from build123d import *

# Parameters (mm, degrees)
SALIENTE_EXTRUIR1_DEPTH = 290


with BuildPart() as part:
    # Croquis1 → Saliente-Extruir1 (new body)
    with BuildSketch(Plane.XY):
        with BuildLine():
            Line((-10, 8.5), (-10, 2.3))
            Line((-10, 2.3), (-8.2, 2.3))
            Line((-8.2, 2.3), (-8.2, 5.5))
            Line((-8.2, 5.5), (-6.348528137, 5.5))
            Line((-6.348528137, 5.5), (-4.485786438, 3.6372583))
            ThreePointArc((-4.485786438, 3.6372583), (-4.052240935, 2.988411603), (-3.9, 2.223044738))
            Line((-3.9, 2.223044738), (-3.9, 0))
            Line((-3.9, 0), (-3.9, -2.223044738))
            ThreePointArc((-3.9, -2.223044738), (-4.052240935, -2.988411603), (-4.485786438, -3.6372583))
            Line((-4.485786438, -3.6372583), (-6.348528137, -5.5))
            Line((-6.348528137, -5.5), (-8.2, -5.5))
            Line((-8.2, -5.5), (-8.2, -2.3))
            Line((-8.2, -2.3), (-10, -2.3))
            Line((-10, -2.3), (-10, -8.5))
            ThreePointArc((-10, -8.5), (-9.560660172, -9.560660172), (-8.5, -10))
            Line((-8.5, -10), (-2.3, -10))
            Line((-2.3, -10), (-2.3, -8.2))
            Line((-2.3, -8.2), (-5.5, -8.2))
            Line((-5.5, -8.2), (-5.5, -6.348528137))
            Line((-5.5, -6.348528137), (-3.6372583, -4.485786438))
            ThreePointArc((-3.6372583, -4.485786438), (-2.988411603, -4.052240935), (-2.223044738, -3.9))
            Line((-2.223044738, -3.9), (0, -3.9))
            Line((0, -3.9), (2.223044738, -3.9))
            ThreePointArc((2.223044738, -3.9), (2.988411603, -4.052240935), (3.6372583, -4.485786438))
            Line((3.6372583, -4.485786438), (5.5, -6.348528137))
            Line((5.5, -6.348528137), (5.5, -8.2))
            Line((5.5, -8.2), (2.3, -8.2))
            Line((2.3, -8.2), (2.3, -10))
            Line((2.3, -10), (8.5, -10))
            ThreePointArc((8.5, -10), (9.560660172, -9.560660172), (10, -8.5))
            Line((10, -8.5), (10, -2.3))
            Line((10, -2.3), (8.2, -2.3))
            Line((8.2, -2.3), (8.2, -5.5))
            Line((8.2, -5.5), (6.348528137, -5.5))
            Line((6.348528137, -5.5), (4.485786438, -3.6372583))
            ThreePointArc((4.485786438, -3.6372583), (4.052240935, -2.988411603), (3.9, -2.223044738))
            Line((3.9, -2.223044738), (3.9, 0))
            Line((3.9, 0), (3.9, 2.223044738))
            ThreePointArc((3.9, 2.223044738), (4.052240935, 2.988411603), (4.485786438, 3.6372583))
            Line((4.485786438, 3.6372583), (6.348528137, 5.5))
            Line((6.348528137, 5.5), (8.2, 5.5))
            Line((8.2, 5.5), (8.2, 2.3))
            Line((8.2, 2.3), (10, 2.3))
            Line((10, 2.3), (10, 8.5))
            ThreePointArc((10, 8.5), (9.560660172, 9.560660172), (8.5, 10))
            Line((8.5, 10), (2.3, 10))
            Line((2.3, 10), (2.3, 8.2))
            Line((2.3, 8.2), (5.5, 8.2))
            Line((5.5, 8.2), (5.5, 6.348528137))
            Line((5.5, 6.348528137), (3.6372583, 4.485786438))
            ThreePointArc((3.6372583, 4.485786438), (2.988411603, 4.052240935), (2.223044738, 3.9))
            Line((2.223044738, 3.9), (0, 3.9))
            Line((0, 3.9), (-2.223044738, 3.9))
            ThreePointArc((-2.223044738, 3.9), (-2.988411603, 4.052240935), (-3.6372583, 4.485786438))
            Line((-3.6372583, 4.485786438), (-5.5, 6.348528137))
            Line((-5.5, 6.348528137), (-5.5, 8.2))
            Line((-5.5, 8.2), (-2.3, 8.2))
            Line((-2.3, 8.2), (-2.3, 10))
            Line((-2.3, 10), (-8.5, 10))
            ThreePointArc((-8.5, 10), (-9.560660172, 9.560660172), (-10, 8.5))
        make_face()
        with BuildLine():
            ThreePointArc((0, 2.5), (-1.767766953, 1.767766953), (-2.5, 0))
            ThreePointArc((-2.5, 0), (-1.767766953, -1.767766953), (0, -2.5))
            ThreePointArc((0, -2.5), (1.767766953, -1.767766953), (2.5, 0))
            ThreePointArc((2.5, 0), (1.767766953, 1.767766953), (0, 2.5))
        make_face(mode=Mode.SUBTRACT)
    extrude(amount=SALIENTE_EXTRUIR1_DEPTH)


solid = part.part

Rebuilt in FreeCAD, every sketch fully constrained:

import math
import FreeCAD as App
import Part
import Sketcher
Q = App.Units.Quantity

doc = App.newDocument("Part")
params = doc.addObject("Spreadsheet::Sheet", "Params")
for row, (alias, value) in enumerate([
    ("sketch1_radius", "2 mm"),
    ("sketch1_radius2", "1.5 mm"),
    ("sketch1_radius3", "2.5 mm"),
    ("sketch1_width", "1.8 mm"),
    ("sketch1_width2", "6.2 mm"),
    ("pad1_length", "290 mm"),
], start=1):
    params.set(f"A{row}", alias)
    params.set(f"B{row}", "=" + value)
    params.setAlias(f"B{row}", alias)

body = doc.addObject("PartDesign::Body", "Body")

# Sketch on XY plane
sketch1 = doc.addObject("Sketcher::SketchObject", "Sketch")
body.addObject(sketch1)
sketch1.AttachmentSupport = (doc.XY_Plane, [""])
sketch1.MapMode = "FlatFace"
sketch1.addGeometry(Part.LineSegment(App.Vector(-10, 8.5, 0), App.Vector(-10, 2.3, 0)), False)
sketch1.addGeometry(Part.LineSegment(App.Vector(-10, 2.3, 0), App.Vector(-8.2, 2.3, 0)), False)
sketch1.addGeometry(Part.LineSegment(App.Vector(-8.2, 2.3, 0), App.Vector(-8.2, 5.5, 0)), False)
sketch1.addGeometry(Part.LineSegment(App.Vector(-8.2, 5.5, 0), App.Vector(-6.3, 5.5, 0)), False)
sketch1.addGeometry(Part.LineSegment(App.Vector(-6.3, 5.5, 0), App.Vector(-4.5, 3.6, 0)), False)
sketch1.addGeometry(Part.ArcOfCircle(Part.Circle(App.Vector(-5.9, 2.2, 0), App.Vector(0, 0, 1), 2), math.radians(0), math.radians(45)), False)
sketch1.addGeometry(Part.LineSegment(App.Vector(-3.9, 2.2, 0), App.Vector(-3.9, -2.2, 0)), False)
sketch1.addGeometry(Part.ArcOfCircle(Part.Circle(App.Vector(-5.9, -2.2, 0), App.Vector(0, 0, 1), 2), math.radians(-45), math.radians(0)), False)
sketch1.addGeometry(Part.LineSegment(App.Vector(-4.5, -3.6, 0), App.Vector(-6.3, -5.5, 0)), False)
sketch1.addGeometry(Part.LineSegment(App.Vector(-6.3, -5.5, 0), App.Vector(-8.2, -5.5, 0)), False)
sketch1.addGeometry(Part.LineSegment(App.Vector(-8.2, -5.5, 0), App.Vector(-8.2, -2.3, 0)), False)
sketch1.addGeometry(Part.LineSegment(App.Vector(-8.2, -2.3, 0), App.Vector(-10, -2.3, 0)), False)
sketch1.addGeometry(Part.LineSegment(App.Vector(-10, -2.3, 0), App.Vector(-10, -8.5, 0)), False)
sketch1.addGeometry(Part.ArcOfCircle(Part.Circle(App.Vector(-8.5, -8.5, 0), App.Vector(0, 0, 1), 1.5), math.radians(180), math.radians(270)), False)
sketch1.addGeometry(Part.LineSegment(App.Vector(-8.5, -10, 0), App.Vector(-2.3, -10, 0)), False)
sketch1.addGeometry(Part.LineSegment(App.Vector(-2.3, -10, 0), App.Vector(-2.3, -8.2, 0)), False)
sketch1.addGeometry(Part.LineSegment(App.Vector(-2.3, -8.2, 0), App.Vector(-5.5, -8.2, 0)), False)
sketch1.addGeometry(Part.LineSegment(App.Vector(-5.5, -8.2, 0), App.Vector(-5.5, -6.3, 0)), False)
sketch1.addGeometry(Part.LineSegment(App.Vector(-5.5, -6.3, 0), App.Vector(-3.6, -4.5, 0)), False)
sketch1.addGeometry(Part.ArcOfCircle(Part.Circle(App.Vector(-2.2, -5.9, 0), App.Vector(0, 0, 1), 2), math.radians(90), math.radians(135)), False)
sketch1.addGeometry(Part.LineSegment(App.Vector(-2.2, -3.9, 0), App.Vector(2.2, -3.9, 0)), False)
sketch1.addGeometry(Part.ArcOfCircle(Part.Circle(App.Vector(2.2, -5.9, 0), App.Vector(0, 0, 1), 2), math.radians(45), math.radians(90)), False)
sketch1.addGeometry(Part.LineSegment(App.Vector(3.6, -4.5, 0), App.Vector(5.5, -6.3, 0)), False)
sketch1.addGeometry(Part.LineSegment(App.Vector(5.5, -6.3, 0), App.Vector(5.5, -8.2, 0)), False)
sketch1.addGeometry(Part.LineSegment(App.Vector(5.5, -8.2, 0), App.Vector(2.3, -8.2, 0)), False)
sketch1.addGeometry(Part.LineSegment(App.Vector(2.3, -8.2, 0), App.Vector(2.3, -10, 0)), False)
sketch1.addGeometry(Part.LineSegment(App.Vector(2.3, -10, 0), App.Vector(8.5, -10, 0)), False)
sketch1.addGeometry(Part.ArcOfCircle(Part.Circle(App.Vector(8.5, -8.5, 0), App.Vector(0, 0, 1), 1.5), math.radians(-90), math.radians(0)), False)
sketch1.addGeometry(Part.LineSegment(App.Vector(10, -8.5, 0), App.Vector(10, -2.3, 0)), False)
sketch1.addGeometry(Part.LineSegment(App.Vector(10, -2.3, 0), App.Vector(8.2, -2.3, 0)), False)
sketch1.addGeometry(Part.LineSegment(App.Vector(8.2, -2.3, 0), App.Vector(8.2, -5.5, 0)), False)
sketch1.addGeometry(Part.LineSegment(App.Vector(8.2, -5.5, 0), App.Vector(6.3, -5.5, 0)), False)
sketch1.addGeometry(Part.LineSegment(App.Vector(6.3, -5.5, 0), App.Vector(4.5, -3.6, 0)), False)
sketch1.addGeometry(Part.ArcOfCircle(Part.Circle(App.Vector(5.9, -2.2, 0), App.Vector(0, 0, 1), 2), math.radians(180), math.radians(225)), False)
sketch1.addGeometry(Part.LineSegment(App.Vector(3.9, -2.2, 0), App.Vector(3.9, 2.2, 0)), False)
sketch1.addGeometry(Part.ArcOfCircle(Part.Circle(App.Vector(5.9, 2.2, 0), App.Vector(0, 0, 1), 2), math.radians(135), math.radians(180)), False)
sketch1.addGeometry(Part.LineSegment(App.Vector(4.5, 3.6, 0), App.Vector(6.3, 5.5, 0)), False)
sketch1.addGeometry(Part.LineSegment(App.Vector(6.3, 5.5, 0), App.Vector(8.2, 5.5, 0)), False)
sketch1.addGeometry(Part.LineSegment(App.Vector(8.2, 5.5, 0), App.Vector(8.2, 2.3, 0)), False)
sketch1.addGeometry(Part.LineSegment(App.Vector(8.2, 2.3, 0), App.Vector(10, 2.3, 0)), False)
sketch1.addGeometry(Part.LineSegment(App.Vector(10, 2.3, 0), App.Vector(10, 8.5, 0)), False)
sketch1.addGeometry(Part.ArcOfCircle(Part.Circle(App.Vector(8.5, 8.5, 0), App.Vector(0, 0, 1), 1.5), math.radians(0), math.radians(90)), False)
sketch1.addGeometry(Part.LineSegment(App.Vector(8.5, 10, 0), App.Vector(2.3, 10, 0)), False)
sketch1.addGeometry(Part.LineSegment(App.Vector(2.3, 10, 0), App.Vector(2.3, 8.2, 0)), False)
sketch1.addGeometry(Part.LineSegment(App.Vector(2.3, 8.2, 0), App.Vector(5.5, 8.2, 0)), False)
sketch1.addGeometry(Part.LineSegment(App.Vector(5.5, 8.2, 0), App.Vector(5.5, 6.3, 0)), False)
sketch1.addGeometry(Part.LineSegment(App.Vector(5.5, 6.3, 0), App.Vector(3.6, 4.5, 0)), False)
sketch1.addGeometry(Part.ArcOfCircle(Part.Circle(App.Vector(2.2, 5.9, 0), App.Vector(0, 0, 1), 2), math.radians(-90), math.radians(-45)), False)
sketch1.addGeometry(Part.LineSegment(App.Vector(2.2, 3.9, 0), App.Vector(-2.2, 3.9, 0)), False)
sketch1.addGeometry(Part.ArcOfCircle(Part.Circle(App.Vector(-2.2, 5.9, 0), App.Vector(0, 0, 1), 2), math.radians(-135), math.radians(-90)), False)
sketch1.addGeometry(Part.LineSegment(App.Vector(-3.6, 4.5, 0), App.Vector(-5.5, 6.3, 0)), False)
sketch1.addGeometry(Part.LineSegment(App.Vector(-5.5, 6.3, 0), App.Vector(-5.5, 8.2, 0)), False)
sketch1.addGeometry(Part.LineSegment(App.Vector(-5.5, 8.2, 0), App.Vector(-2.3, 8.2, 0)), False)
sketch1.addGeometry(Part.LineSegment(App.Vector(-2.3, 8.2, 0), App.Vector(-2.3, 10, 0)), False)
sketch1.addGeometry(Part.LineSegment(App.Vector(-2.3, 10, 0), App.Vector(-8.5, 10, 0)), False)
sketch1.addGeometry(Part.ArcOfCircle(Part.Circle(App.Vector(-8.5, 8.5, 0), App.Vector(0, 0, 1), 1.5), math.radians(90), math.radians(180)), False)
sketch1.addGeometry(Part.ArcOfCircle(Part.Circle(App.Vector(0, 0, 0), App.Vector(0, 0, 1), 2.5), math.radians(90), math.radians(180)), False)
sketch1.addGeometry(Part.ArcOfCircle(Part.Circle(App.Vector(0, 0, 0), App.Vector(0, 0, 1), 2.5), math.radians(0), math.radians(90)), False)
sketch1.addGeometry(Part.ArcOfCircle(Part.Circle(App.Vector(0, 0, 0), App.Vector(0, 0, 1), 2.5), math.radians(-90), math.radians(0)), False)
sketch1.addGeometry(Part.ArcOfCircle(Part.Circle(App.Vector(0, 0, 0), App.Vector(0, 0, 1), 2.5), math.radians(180), math.radians(270)), False)
sketch1.addConstraint(Sketcher.Constraint("Coincident", 0, 2, 1, 1))
sketch1.addConstraint(Sketcher.Constraint("Coincident", 1, 2, 2, 1))
sketch1.addConstraint(Sketcher.Constraint("Coincident", 2, 2, 3, 1))
sketch1.addConstraint(Sketcher.Constraint("Coincident", 3, 2, 4, 1))
sketch1.addConstraint(Sketcher.Constraint("Tangent", 4, 2, 5, 2))
sketch1.addConstraint(Sketcher.Constraint("Tangent", 5, 1, 6, 1))
sketch1.addConstraint(Sketcher.Constraint("Tangent", 6, 2, 7, 2))
sketch1.addConstraint(Sketcher.Constraint("Tangent", 7, 1, 8, 1))
sketch1.addConstraint(Sketcher.Constraint("Coincident", 8, 2, 9, 1))
sketch1.addConstraint(Sketcher.Constraint("Coincident", 9, 2, 10, 1))
sketch1.addConstraint(Sketcher.Constraint("Coincident", 10, 2, 11, 1))
sketch1.addConstraint(Sketcher.Constraint("Coincident", 11, 2, 12, 1))
sketch1.addConstraint(Sketcher.Constraint("Tangent", 12, 2, 13, 1))
sketch1.addConstraint(Sketcher.Constraint("Tangent", 13, 2, 14, 1))
sketch1.addConstraint(Sketcher.Constraint("Coincident", 14, 2, 15, 1))
sketch1.addConstraint(Sketcher.Constraint("Coincident", 15, 2, 16, 1))
sketch1.addConstraint(Sketcher.Constraint("Coincident", 16, 2, 17, 1))
sketch1.addConstraint(Sketcher.Constraint("Coincident", 17, 2, 18, 1))
sketch1.addConstraint(Sketcher.Constraint("Tangent", 18, 2, 19, 2))
sketch1.addConstraint(Sketcher.Constraint("Tangent", 19, 1, 20, 1))
sketch1.addConstraint(Sketcher.Constraint("Tangent", 20, 2, 21, 2))
sketch1.addConstraint(Sketcher.Constraint("Tangent", 21, 1, 22, 1))
sketch1.addConstraint(Sketcher.Constraint("Coincident", 22, 2, 23, 1))
sketch1.addConstraint(Sketcher.Constraint("Coincident", 23, 2, 24, 1))
sketch1.addConstraint(Sketcher.Constraint("Coincident", 24, 2, 25, 1))
sketch1.addConstraint(Sketcher.Constraint("Coincident", 25, 2, 26, 1))
sketch1.addConstraint(Sketcher.Constraint("Tangent", 26, 2, 27, 1))
sketch1.addConstraint(Sketcher.Constraint("Tangent", 27, 2, 28, 1))
sketch1.addConstraint(Sketcher.Constraint("Coincident", 28, 2, 29, 1))
sketch1.addConstraint(Sketcher.Constraint("Coincident", 29, 2, 30, 1))
sketch1.addConstraint(Sketcher.Constraint("Coincident", 30, 2, 31, 1))
sketch1.addConstraint(Sketcher.Constraint("Coincident", 31, 2, 32, 1))
sketch1.addConstraint(Sketcher.Constraint("Tangent", 32, 2, 33, 2))
sketch1.addConstraint(Sketcher.Constraint("Tangent", 33, 1, 34, 1))
sketch1.addConstraint(Sketcher.Constraint("Tangent", 34, 2, 35, 2))
sketch1.addConstraint(Sketcher.Constraint("Tangent", 35, 1, 36, 1))
sketch1.addConstraint(Sketcher.Constraint("Coincident", 36, 2, 37, 1))
sketch1.addConstraint(Sketcher.Constraint("Coincident", 37, 2, 38, 1))
sketch1.addConstraint(Sketcher.Constraint("Coincident", 38, 2, 39, 1))
sketch1.addConstraint(Sketcher.Constraint("Coincident", 39, 2, 40, 1))
sketch1.addConstraint(Sketcher.Constraint("Tangent", 40, 2, 41, 1))
sketch1.addConstraint(Sketcher.Constraint("Tangent", 41, 2, 42, 1))
sketch1.addConstraint(Sketcher.Constraint("Coincident", 42, 2, 43, 1))
sketch1.addConstraint(Sketcher.Constraint("Coincident", 43, 2, 44, 1))
sketch1.addConstraint(Sketcher.Constraint("Coincident", 44, 2, 45, 1))
sketch1.addConstraint(Sketcher.Constraint("Coincident", 45, 2, 46, 1))
sketch1.addConstraint(Sketcher.Constraint("Tangent", 46, 2, 47, 2))
sketch1.addConstraint(Sketcher.Constraint("Tangent", 47, 1, 48, 1))
sketch1.addConstraint(Sketcher.Constraint("Tangent", 48, 2, 49, 2))
sketch1.addConstraint(Sketcher.Constraint("Tangent", 49, 1, 50, 1))
sketch1.addConstraint(Sketcher.Constraint("Coincident", 50, 2, 51, 1))
sketch1.addConstraint(Sketcher.Constraint("Coincident", 51, 2, 52, 1))
sketch1.addConstraint(Sketcher.Constraint("Coincident", 52, 2, 53, 1))
sketch1.addConstraint(Sketcher.Constraint("Coincident", 53, 2, 54, 1))
sketch1.addConstraint(Sketcher.Constraint("Tangent", 54, 2, 55, 1))
sketch1.addConstraint(Sketcher.Constraint("Tangent", 55, 2, 0, 1))
sketch1.addConstraint(Sketcher.Constraint("Tangent", 56, 1, 57, 2))
sketch1.addConstraint(Sketcher.Constraint("Tangent", 57, 1, 58, 2))
sketch1.addConstraint(Sketcher.Constraint("Tangent", 58, 1, 59, 2))
sketch1.addConstraint(Sketcher.Constraint("Tangent", 59, 1, 56, 2))
sketch1.addConstraint(Sketcher.Constraint("Vertical", 0))
sketch1.addConstraint(Sketcher.Constraint("Horizontal", 1))
sketch1.addConstraint(Sketcher.Constraint("Vertical", 2))
sketch1.addConstraint(Sketcher.Constraint("Horizontal", 3))
sketch1.addConstraint(Sketcher.Constraint("Vertical", 6))
sketch1.addConstraint(Sketcher.Constraint("Horizontal", 9))
sketch1.addConstraint(Sketcher.Constraint("Vertical", 10))
sketch1.addConstraint(Sketcher.Constraint("Horizontal", 11))
sketch1.addConstraint(Sketcher.Constraint("Vertical", 12))
sketch1.addConstraint(Sketcher.Constraint("Horizontal", 14))
sketch1.addConstraint(Sketcher.Constraint("Vertical", 15))
sketch1.addConstraint(Sketcher.Constraint("Horizontal", 16))
sketch1.addConstraint(Sketcher.Constraint("Vertical", 17))
sketch1.addConstraint(Sketcher.Constraint("Horizontal", 20))
sketch1.addConstraint(Sketcher.Constraint("Vertical", 23))
sketch1.addConstraint(Sketcher.Constraint("Horizontal", 24))
sketch1.addConstraint(Sketcher.Constraint("Vertical", 25))
sketch1.addConstraint(Sketcher.Constraint("Horizontal", 26))
sketch1.addConstraint(Sketcher.Constraint("Vertical", 28))
sketch1.addConstraint(Sketcher.Constraint("Horizontal", 29))
sketch1.addConstraint(Sketcher.Constraint("Vertical", 30))
sketch1.addConstraint(Sketcher.Constraint("Horizontal", 31))
sketch1.addConstraint(Sketcher.Constraint("Vertical", 34))
sketch1.addConstraint(Sketcher.Constraint("Horizontal", 37))
sketch1.addConstraint(Sketcher.Constraint("Vertical", 38))
sketch1.addConstraint(Sketcher.Constraint("Horizontal", 39))
sketch1.addConstraint(Sketcher.Constraint("Vertical", 40))
sketch1.addConstraint(Sketcher.Constraint("Horizontal", 42))
sketch1.addConstraint(Sketcher.Constraint("Vertical", 43))
sketch1.addConstraint(Sketcher.Constraint("Horizontal", 44))
sketch1.addConstraint(Sketcher.Constraint("Vertical", 45))
sketch1.addConstraint(Sketcher.Constraint("Horizontal", 48))
sketch1.addConstraint(Sketcher.Constraint("Vertical", 51))
sketch1.addConstraint(Sketcher.Constraint("Horizontal", 52))
sketch1.addConstraint(Sketcher.Constraint("Vertical", 53))
sketch1.addConstraint(Sketcher.Constraint("Horizontal", 54))
sketch1.addConstraint(Sketcher.Constraint("Coincident", 56, 3, -1, 1))
sketch1.addConstraint(Sketcher.Constraint("Equal", 5, 7))
sketch1.addConstraint(Sketcher.Constraint("Equal", 7, 19))
sketch1.addConstraint(Sketcher.Constraint("Equal", 19, 21))
sketch1.addConstraint(Sketcher.Constraint("Equal", 13, 27))
sketch1.addConstraint(Sketcher.Constraint("Equal", 21, 33))
sketch1.addConstraint(Sketcher.Constraint("Equal", 33, 35))
sketch1.addConstraint(Sketcher.Constraint("Equal", 27, 41))
sketch1.addConstraint(Sketcher.Constraint("Equal", 35, 47))
sketch1.addConstraint(Sketcher.Constraint("Equal", 47, 49))
sketch1.addConstraint(Sketcher.Constraint("Equal", 41, 55))
sketch1.addConstraint(Sketcher.Constraint("Equal", 56, 57))
sketch1.addConstraint(Sketcher.Constraint("Symmetric", 5, 3, 33, 3, -1, 1))
sketch1.addConstraint(Sketcher.Constraint("Symmetric", 13, 3, 41, 3, -1, 1))
sketch1.addConstraint(Sketcher.Constraint("Symmetric", 19, 3, 47, 3, -1, 1))
sketch1.addConstraint(Sketcher.Constraint("Symmetric", 27, 3, 55, 3, -1, 1))
sketch1.addConstraint(Sketcher.Constraint("Symmetric", 1, 2, 29, 2, -1, 1))
sketch1.addConstraint(Sketcher.Constraint("Symmetric", 3, 2, 31, 2, -1, 1))
sketch1.addConstraint(Sketcher.Constraint("Symmetric", 7, 1, 35, 1, -1, 1))
sketch1.addConstraint(Sketcher.Constraint("Symmetric", 9, 2, 37, 2, -1, 1))
sketch1.addConstraint(Sketcher.Constraint("Symmetric", 15, 2, 43, 2, -1, 1))
sketch1.addConstraint(Sketcher.Constraint("Symmetric", 17, 2, 45, 2, -1, 1))
sketch1.addConstraint(Sketcher.Constraint("Symmetric", 21, 1, 49, 1, -1, 1))
sketch1.addConstraint(Sketcher.Constraint("Symmetric", 23, 2, 51, 2, -1, 1))
sketch1.addConstraint(Sketcher.Constraint("Symmetric", 13, 3, 27, 3, -2))
sketch1.addConstraint(Sketcher.Constraint("Symmetric", 18, 2, 21, 1, -2))
sketch1.addConstraint(Sketcher.Constraint("Symmetric", 16, 2, 23, 2, -2))
sketch1.addConstraint(Sketcher.Constraint("Symmetric", 10, 2, 29, 2, -2))
sketch1.addConstraint(Sketcher.Constraint("Symmetric", 8, 2, 31, 2, -2))
sketch1.addConstraint(Sketcher.Constraint("PointOnObject", 56, 1, -2))
sketch1.addConstraint(Sketcher.Constraint("PointOnObject", 57, 1, -1))
sketch1.addConstraint(Sketcher.Constraint("PointOnObject", 58, 1, -2))
sketch1.addConstraint(Sketcher.Constraint("PointOnObject", 59, 1, -1))
sketch1.addConstraint(Sketcher.Constraint("Perpendicular", 4, 8))
sketch1.addConstraint(Sketcher.Constraint("Parallel", 8, 18))
sketch1.addConstraint(Sketcher.Constraint("Perpendicular", 18, 22))
sketch1.addConstraint(Sketcher.Constraint("Horizontal", 1, 2, 38, 2))
sketch1.addConstraint(Sketcher.Constraint("Vertical", 25, 2, 42, 2))
sketch1.addConstraint(Sketcher.Constraint("Vertical", 15, 2, 52, 2))
sketch1.addConstraint(Sketcher.Constraint("Equal", 54, 0))
sketch1.addConstraint(Sketcher.Constraint("Equal", 52, 2))
sketch1.addConstraint(Sketcher.Constraint("Equal", 48, 6))
sketch1.addConstraint(Sketcher.Constraint("Equal", 39, 15))
sketch1.addConstraint(Sketcher.Constraint("Equal", 37, 17))
sketch1.addConstraint(Sketcher.Constraint("Equal", 8, 18))
sketch1.addConstraint(Sketcher.Constraint("Radius", 5, Q("2 mm")))
sketch1.addConstraint(Sketcher.Constraint("Radius", 13, Q("1.5 mm")))
sketch1.addConstraint(Sketcher.Constraint("Radius", 56, Q("2.5 mm")))
sketch1.addConstraint(Sketcher.Constraint("DistanceX", 1, 1, 1, 2, Q("1.8 mm")))
sketch1.addConstraint(Sketcher.Constraint("DistanceX", 14, 1, 14, 2, Q("6.2 mm")))
sketch1.addConstraint(Sketcher.Constraint("DistanceX", 16, 2, 16, 1, Q("3.2 mm")))
sketch1.addConstraint(Sketcher.Constraint("DistanceX", 0, 2, -1, 1, Q("10 mm")))
sketch1.addConstraint(Sketcher.Constraint("DistanceX", 5, 3, -1, 1, Q("5.9 mm")))
sketch1.addConstraint(Sketcher.Constraint("DistanceX", 3, 1, 3, 2, Q("1.851472 mm")))
sketch1.setExpression("Constraints[141]", "Params.sketch1_radius")
sketch1.setExpression("Constraints[142]", "Params.sketch1_radius2")
sketch1.setExpression("Constraints[143]", "Params.sketch1_radius3")
sketch1.setExpression("Constraints[144]", "Params.sketch1_width")
sketch1.setExpression("Constraints[145]", "Params.sketch1_width2")
pad1 = doc.addObject("PartDesign::Pad", "Pad")
body.addObject(pad1)
pad1.Profile = sketch1
pad1.setExpression("Length", "Params.pad1_length")

doc.recompute()
